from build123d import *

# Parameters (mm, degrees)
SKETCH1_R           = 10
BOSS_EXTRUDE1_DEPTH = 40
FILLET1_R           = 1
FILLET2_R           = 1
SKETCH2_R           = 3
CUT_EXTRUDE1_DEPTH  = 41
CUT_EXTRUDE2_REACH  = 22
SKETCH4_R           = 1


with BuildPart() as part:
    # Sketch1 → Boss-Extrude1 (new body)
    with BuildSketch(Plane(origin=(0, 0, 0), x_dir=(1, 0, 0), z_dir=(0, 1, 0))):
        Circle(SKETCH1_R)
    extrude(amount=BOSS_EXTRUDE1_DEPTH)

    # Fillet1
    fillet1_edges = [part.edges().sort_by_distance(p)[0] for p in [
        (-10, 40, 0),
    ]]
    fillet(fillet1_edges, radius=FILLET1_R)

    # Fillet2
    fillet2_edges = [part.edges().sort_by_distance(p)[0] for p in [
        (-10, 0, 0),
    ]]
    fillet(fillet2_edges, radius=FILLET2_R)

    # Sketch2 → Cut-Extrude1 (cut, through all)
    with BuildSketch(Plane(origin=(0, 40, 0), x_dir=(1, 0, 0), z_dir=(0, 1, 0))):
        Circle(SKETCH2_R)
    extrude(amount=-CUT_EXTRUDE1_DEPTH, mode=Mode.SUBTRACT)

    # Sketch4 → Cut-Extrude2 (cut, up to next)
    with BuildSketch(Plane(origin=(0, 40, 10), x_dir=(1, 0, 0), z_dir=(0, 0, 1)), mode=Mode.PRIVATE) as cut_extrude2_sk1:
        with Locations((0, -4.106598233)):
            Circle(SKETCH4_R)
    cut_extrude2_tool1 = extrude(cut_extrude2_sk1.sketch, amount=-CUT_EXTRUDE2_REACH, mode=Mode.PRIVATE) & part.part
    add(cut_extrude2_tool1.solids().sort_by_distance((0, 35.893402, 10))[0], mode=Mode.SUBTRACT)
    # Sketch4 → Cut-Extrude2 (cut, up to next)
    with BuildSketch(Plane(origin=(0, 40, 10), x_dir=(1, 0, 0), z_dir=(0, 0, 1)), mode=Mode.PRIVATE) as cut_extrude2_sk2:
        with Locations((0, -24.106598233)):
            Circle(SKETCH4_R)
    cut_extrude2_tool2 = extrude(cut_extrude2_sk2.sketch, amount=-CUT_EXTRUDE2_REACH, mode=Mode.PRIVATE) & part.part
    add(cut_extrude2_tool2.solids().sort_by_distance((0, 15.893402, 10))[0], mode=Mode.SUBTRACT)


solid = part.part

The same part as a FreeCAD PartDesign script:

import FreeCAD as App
import Part
import Sketcher
Q = App.Units.Quantity


def edges_at(feature, points):
    """Names of the edges that pass closest to the given points."""
    edges = feature.Shape.Edges
    near = lambda p: min(range(len(edges)), key=lambda i: edges[i].distToShape(Part.Vertex(*p))[0])
    return sorted({f"Edge{near(p) + 1}" for p in points})

doc = App.newDocument("Part")
body = doc.addObject("PartDesign::Body", "Body")

# Sketch on XZ plane
sketch1 = body.newObject("Sketcher::SketchObject", "Sketch")
sketch1.AttachmentSupport = (doc.getObject("XZ_Plane"), [""])
sketch1.MapMode = "FlatFace"
sketch1.addGeometry(Part.Circle(App.Vector(0, 0, 0), App.Vector(0, 0, 1), 10), False)
sketch1.addConstraint([
    Sketcher.Constraint("Coincident", 0, 3, -1, 1),
    Sketcher.Constraint("Diameter", 0, Q("20 mm")),
])
pad1 = body.newObject("PartDesign::Pad", "Pad")
pad1.Profile = sketch1
pad1.Length = 40
pad1.Reversed = True
doc.recompute()

fillet = body.newObject("PartDesign::Fillet", "Fillet")
fillet.Base = (pad1, edges_at(pad1, [(-10, 40, 0)]))
fillet.Radius = 1
doc.recompute()

fillet2 = body.newObject("PartDesign::Fillet", "Fillet001")
fillet2.Base = (fillet, edges_at(fillet, [(-10, 0, 0)]))
fillet2.Radius = 1

# Sketch on XZ plane
sketch2 = body.newObject("Sketcher::SketchObject", "Sketch001")
sketch2.AttachmentSupport = (doc.getObject("XZ_Plane"), [""])
sketch2.MapMode = "FlatFace"
sketch2.AttachmentOffset = App.Placement(App.Vector(0, 0, -40), App.Rotation())
sketch2.addGeometry(Part.Circle(App.Vector(0, 0, 0), App.Vector(0, 0, 1), 3), False)
sketch2.addConstraint([
    Sketcher.Constraint("Coincident", 0, 3, -1, 1),
    Sketcher.Constraint("Diameter", 0, Q("6 mm")),
])
pocket1 = body.newObject("PartDesign::Pocket", "Pocket")
pocket1.Profile = sketch2
pocket1.Type = "ThroughAll"
pocket1.Reversed = True

# Sketch on XY plane
sketch3 = body.newObject("Sketcher::SketchObject", "Sketch002")
sketch3.AttachmentSupport = (doc.getObject("XY_Plane"), [""])
sketch3.MapMode = "FlatFace"
sketch3.AttachmentOffset = App.Placement(App.Vector(0, 0, 10), App.Rotation())
sketch3.addGeometry(Part.Circle(App.Vector(0, 35.893402, 0), App.Vector(0, 0, 1), 1), False)
sketch3.addConstraint([
    Sketcher.Constraint("PointOnObject", 0, 3, -2),
    Sketcher.Constraint("Diameter", 0, Q("2 mm")),
    Sketcher.Constraint("DistanceY", -1, 1, 0, 3, Q("35.893402 mm")),
])
pocket2 = body.newObject("PartDesign::Pocket", "Pocket001")
pocket2.Profile = sketch3
pocket2.Type = "UpToFirst"

# Sketch on XY plane
sketch4 = body.newObject("Sketcher::SketchObject", "Sketch003")
sketch4.AttachmentSupport = (doc.getObject("XY_Plane"), [""])
sketch4.MapMode = "FlatFace"
sketch4.AttachmentOffset = App.Placement(App.Vector(0, 0, 10), App.Rotation())
sketch4.addGeometry(Part.Circle(App.Vector(0, 15.893402, 0), App.Vector(0, 0, 1), 1), False)
sketch4.addConstraint([
    Sketcher.Constraint("PointOnObject", 0, 3, -2),
    Sketcher.Constraint("Diameter", 0, Q("2 mm")),
    Sketcher.Constraint("DistanceY", -1, 1, 0, 3, Q("15.893402 mm")),
])
pocket3 = body.newObject("PartDesign::Pocket", "Pocket002")
pocket3.Profile = sketch4
pocket3.Type = "UpToFirst"

doc.recompute()
